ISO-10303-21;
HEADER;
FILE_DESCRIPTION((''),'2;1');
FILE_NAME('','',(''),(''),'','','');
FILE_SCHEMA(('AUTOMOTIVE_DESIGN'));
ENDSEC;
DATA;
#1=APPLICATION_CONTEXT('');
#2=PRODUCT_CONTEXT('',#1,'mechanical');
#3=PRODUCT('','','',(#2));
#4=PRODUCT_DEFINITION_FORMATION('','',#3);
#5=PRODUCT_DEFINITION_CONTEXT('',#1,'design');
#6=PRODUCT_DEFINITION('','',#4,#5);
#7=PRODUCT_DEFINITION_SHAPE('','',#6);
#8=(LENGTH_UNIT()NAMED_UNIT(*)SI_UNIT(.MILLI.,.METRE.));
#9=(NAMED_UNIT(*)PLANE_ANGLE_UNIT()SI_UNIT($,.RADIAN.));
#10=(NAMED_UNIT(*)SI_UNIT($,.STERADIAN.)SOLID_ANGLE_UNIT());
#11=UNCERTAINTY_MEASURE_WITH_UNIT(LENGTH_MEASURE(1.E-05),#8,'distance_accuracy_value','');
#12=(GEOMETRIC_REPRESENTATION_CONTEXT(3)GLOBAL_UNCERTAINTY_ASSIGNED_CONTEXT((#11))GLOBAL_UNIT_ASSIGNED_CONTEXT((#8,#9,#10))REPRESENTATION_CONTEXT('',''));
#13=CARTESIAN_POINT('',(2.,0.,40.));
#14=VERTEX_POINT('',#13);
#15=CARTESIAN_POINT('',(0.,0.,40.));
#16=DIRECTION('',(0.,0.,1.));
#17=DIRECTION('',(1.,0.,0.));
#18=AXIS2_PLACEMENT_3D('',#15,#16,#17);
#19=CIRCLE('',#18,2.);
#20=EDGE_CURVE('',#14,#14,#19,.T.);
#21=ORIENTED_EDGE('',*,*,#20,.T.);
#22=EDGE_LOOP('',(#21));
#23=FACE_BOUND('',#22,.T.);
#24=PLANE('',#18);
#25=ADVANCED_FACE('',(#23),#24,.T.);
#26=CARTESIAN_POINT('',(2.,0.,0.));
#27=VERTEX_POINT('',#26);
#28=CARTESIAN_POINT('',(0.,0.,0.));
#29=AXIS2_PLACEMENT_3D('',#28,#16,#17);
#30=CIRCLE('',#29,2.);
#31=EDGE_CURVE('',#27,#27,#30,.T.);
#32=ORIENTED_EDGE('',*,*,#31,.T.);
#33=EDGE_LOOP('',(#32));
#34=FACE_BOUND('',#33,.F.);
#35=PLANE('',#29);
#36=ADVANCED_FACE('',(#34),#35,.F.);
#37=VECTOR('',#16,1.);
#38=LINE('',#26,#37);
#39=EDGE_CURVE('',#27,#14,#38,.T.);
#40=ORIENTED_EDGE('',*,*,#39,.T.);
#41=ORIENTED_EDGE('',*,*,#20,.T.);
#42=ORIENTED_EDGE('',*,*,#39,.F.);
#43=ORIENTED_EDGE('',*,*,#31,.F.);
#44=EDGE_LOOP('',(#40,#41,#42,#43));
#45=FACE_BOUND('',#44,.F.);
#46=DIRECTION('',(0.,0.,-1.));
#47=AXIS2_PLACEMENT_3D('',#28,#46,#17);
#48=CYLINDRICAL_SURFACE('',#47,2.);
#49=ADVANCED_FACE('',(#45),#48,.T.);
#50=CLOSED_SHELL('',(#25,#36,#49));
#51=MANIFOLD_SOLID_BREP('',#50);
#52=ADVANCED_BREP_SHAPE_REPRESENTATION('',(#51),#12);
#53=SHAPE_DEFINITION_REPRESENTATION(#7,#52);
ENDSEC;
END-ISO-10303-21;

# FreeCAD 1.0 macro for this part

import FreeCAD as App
import Part
import Sketcher
from FreeCAD import Vector
Q = App.Units.Quantity

doc = App.newDocument("Part")
params = doc.addObject("Spreadsheet::Sheet", "Params")
for row, (alias, value) in enumerate([
    ("sketch1_diameter", "4 mm"),
    ("pad1_length", "40 mm"),
], start=1):
    params.set(f"A{row}", alias)
    params.set(f"B{row}", "=" + value)
    params.setAlias(f"B{row}", alias)

body = doc.addObject("PartDesign::Body", "Body")

# Sketch on XY plane
sketch1 = body.newObject("Sketcher::SketchObject", "Sketch")
sketch1.AttachmentSupport = (doc.getObject("XY_Plane"), [""])
sketch1.MapMode = "FlatFace"
sketch1.addGeometry(Part.Circle(Vector(0, 0, 0), Vector(0, 0, 1), 2), False)
sketch1.addConstraint(Sketcher.Constraint("Coincident", 0, 3, -1, 1))
sketch1.addConstraint(Sketcher.Constraint("Diameter", 0, Q("4 mm")))
sketch1.setExpression("Constraints[1]", "Params.sketch1_diameter")
pad1 = body.newObject("PartDesign::Pad", "Pad")
pad1.Profile = sketch1
pad1.setExpression("Length", "Params.pad1_length")

doc.recompute()
